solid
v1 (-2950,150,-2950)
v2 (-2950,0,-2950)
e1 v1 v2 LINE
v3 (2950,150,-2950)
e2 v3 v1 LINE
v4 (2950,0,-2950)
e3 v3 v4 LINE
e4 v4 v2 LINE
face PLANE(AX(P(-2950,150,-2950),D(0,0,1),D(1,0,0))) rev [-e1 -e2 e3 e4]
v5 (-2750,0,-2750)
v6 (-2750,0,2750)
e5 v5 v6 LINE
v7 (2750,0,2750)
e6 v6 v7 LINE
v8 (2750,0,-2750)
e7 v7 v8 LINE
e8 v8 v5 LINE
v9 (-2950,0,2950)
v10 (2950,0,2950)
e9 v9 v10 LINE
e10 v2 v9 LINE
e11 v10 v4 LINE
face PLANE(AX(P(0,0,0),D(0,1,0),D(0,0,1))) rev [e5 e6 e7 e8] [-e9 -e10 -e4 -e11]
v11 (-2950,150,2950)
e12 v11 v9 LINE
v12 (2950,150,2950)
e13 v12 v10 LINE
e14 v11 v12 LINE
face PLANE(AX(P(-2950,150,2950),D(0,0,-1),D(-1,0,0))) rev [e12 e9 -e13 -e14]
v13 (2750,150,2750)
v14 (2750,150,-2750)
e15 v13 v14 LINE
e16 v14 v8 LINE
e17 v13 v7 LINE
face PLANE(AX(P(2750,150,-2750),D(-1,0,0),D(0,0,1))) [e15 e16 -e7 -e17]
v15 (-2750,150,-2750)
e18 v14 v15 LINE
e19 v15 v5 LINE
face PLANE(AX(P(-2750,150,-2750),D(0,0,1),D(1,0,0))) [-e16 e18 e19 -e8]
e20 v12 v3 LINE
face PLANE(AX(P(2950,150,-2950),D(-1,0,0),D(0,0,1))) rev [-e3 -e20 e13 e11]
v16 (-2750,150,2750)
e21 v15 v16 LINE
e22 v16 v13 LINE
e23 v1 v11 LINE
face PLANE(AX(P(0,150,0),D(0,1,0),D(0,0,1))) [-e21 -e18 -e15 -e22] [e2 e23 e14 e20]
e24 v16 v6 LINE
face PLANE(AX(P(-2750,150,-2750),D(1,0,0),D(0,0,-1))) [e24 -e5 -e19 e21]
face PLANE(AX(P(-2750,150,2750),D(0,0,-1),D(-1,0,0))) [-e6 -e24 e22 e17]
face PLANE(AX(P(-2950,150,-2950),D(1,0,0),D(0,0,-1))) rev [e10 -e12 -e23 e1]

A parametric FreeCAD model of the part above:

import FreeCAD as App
import Part
import Sketcher
from FreeCAD import Vector


def add_polygon(sketch, points):
    """Adds a closed chain of lines whose ends are joined by coincident constraints."""
    first, n = sketch.GeometryCount, len(points)
    for a, b in zip(points, points[1:] + points[:1]):
        sketch.addGeometry(Part.LineSegment(App.Vector(*a, 0), App.Vector(*b, 0)), False)
    for i in range(n):
        sketch.addConstraint(Sketcher.Constraint("Coincident", first + i, 2, first + (i + 1) % n, 1))

doc = App.newDocument("Part")
params = doc.addObject("Spreadsheet::Sheet", "Params")
for row, (alias, value) in enumerate([
    ("sketch1_width", "5900 mm"),
    ("sketch1_width2", "5500 mm"),
    ("pad1_length", "150 mm"),
], start=1):
    params.set(f"A{row}", alias)
    params.set(f"B{row}", "=" + value)
    params.setAlias(f"B{row}", alias)

body = doc.addObject("PartDesign::Body", "Body")

sketch1 = doc.addObject("Sketcher::SketchObject", "Sketch")
body.addObject(sketch1)
sketch1.AttachmentSupport = (doc.XZ_Plane, [""])
sketch1.MapMode = "FlatFace"
add_polygon(sketch1, [(-2950, -2950), (-2950, 2950), (2950, 2950), (2950, -2950)])
add_polygon(sketch1, [(2750, 2750), (-2750, 2750), (-2750, -2750), (2750, -2750)])
sketch1.addConstraint([
    Sketcher.Constraint("Vertical", 0),
    Sketcher.Constraint("Horizontal", 1),
    Sketcher.Constraint("Vertical", 2),
    Sketcher.Constraint("Horizontal", 3),
    Sketcher.Constraint("Horizontal", 4),
    Sketcher.Constraint("Vertical", 5),
    Sketcher.Constraint("Horizontal", 6),
    Sketcher.Constraint("Vertical", 7),
    Sketcher.Constraint("Symmetric", 0, 2, 2, 2, -1, 1),
    Sketcher.Constraint("Symmetric", 4, 2, 6, 2, -1, 1),
    Sketcher.Constraint("Equal", 3, 0),
    Sketcher.Constraint("Equal", 6, 5),
    Sketcher.Constraint("DistanceX", 1, 1, 1, 2, 5900.0),
    Sketcher.Constraint("DistanceX", 4, 2, 4, 1, 5500.0),
])
sketch1.setExpression("Constraints[20]", "Params.sketch1_width")
sketch1.setExpression("Constraints[21]", "Params.sketch1_width2")
pad1 = doc.addObject("PartDesign::Pad", "Pad")
body.addObject(pad1)
pad1.Profile = sketch1
pad1.setExpression("Length", "Params.pad1_length")
pad1.Reversed = True

doc.recompute()
